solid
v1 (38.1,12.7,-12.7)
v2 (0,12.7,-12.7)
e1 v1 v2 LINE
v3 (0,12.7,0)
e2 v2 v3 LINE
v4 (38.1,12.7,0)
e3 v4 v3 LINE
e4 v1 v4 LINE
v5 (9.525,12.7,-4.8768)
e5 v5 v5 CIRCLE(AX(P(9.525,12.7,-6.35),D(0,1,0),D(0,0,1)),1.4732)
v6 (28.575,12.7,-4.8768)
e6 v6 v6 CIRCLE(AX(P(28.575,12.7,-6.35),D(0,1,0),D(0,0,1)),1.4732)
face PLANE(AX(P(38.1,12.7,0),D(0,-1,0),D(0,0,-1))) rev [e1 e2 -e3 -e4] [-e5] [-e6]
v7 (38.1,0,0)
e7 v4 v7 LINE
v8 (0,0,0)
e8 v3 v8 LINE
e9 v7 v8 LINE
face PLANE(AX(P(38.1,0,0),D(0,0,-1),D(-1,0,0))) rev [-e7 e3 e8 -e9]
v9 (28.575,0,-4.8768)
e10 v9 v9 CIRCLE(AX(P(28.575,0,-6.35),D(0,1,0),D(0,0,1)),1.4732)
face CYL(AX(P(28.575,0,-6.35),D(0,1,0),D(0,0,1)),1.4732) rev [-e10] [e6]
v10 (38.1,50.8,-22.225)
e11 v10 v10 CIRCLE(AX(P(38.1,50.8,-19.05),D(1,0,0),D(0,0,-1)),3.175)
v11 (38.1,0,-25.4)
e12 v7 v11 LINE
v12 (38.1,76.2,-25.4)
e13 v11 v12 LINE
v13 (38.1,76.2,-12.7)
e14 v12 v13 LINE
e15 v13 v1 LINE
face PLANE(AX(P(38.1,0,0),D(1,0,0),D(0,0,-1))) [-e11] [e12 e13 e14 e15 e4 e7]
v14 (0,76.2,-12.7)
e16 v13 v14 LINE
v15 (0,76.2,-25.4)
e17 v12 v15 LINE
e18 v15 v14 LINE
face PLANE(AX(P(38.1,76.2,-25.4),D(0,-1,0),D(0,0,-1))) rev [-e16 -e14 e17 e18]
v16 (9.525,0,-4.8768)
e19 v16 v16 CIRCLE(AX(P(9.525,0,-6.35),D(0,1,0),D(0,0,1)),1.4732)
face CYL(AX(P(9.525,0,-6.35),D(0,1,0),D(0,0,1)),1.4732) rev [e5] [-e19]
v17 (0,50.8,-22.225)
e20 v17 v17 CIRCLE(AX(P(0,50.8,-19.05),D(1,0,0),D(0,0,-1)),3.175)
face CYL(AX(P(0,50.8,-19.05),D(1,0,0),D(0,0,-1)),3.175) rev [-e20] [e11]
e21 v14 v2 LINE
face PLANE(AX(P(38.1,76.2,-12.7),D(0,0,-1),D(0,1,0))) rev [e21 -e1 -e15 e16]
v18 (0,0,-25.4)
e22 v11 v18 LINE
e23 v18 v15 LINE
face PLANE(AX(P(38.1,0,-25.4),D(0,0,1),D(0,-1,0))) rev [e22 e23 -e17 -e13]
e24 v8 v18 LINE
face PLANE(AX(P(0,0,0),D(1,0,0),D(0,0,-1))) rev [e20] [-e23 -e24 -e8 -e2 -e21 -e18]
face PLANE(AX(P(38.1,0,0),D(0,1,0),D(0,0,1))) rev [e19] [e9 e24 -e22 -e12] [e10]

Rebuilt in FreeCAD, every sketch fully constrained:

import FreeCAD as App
import Part
import Sketcher
Q = App.Units.Quantity

doc = App.newDocument("Part")
body = doc.addObject("PartDesign::Body", "Body")

sketch1 = body.newObject("Sketcher::SketchObject", "Sketch")
sketch1.AttachmentSupport = (doc.getObject("YZ_Plane"), [""])
sketch1.MapMode = "FlatFace"
sketch1.addGeometry([
    Part.LineSegment(App.Vector(13, 0, 0), App.Vector(0, 0, 0)),
    Part.LineSegment(App.Vector(0, 0, 0), App.Vector(0, -25, 0)),
    Part.LineSegment(App.Vector(0, -25, 0), App.Vector(76, -25, 0)),
    Part.LineSegment(App.Vector(76, -25, 0), App.Vector(76, -13, 0)),
    Part.LineSegment(App.Vector(76, -13, 0), App.Vector(13, -13, 0)),
    Part.LineSegment(App.Vector(13, -13, 0), App.Vector(13, 0, 0)),
], False)
sketch1.addConstraint([
    Sketcher.Constraint("Coincident", 0, 2, 1, 1),
    Sketcher.Constraint("Coincident", 1, 2, 2, 1),
    Sketcher.Constraint("Coincident", 2, 2, 3, 1),
    Sketcher.Constraint("Coincident", 3, 2, 4, 1),
    Sketcher.Constraint("Coincident", 4, 2, 5, 1),
    Sketcher.Constraint("Coincident", 5, 2, 0, 1),
    Sketcher.Constraint("Horizontal", 0),
    Sketcher.Constraint("Vertical", 1),
    Sketcher.Constraint("Horizontal", 2),
    Sketcher.Constraint("Vertical", 3),
    Sketcher.Constraint("Horizontal", 4),
    Sketcher.Constraint("Vertical", 5),
    Sketcher.Constraint("Coincident", 0, 2, -1, 1),
    Sketcher.Constraint("Equal", 0, 3),
    Sketcher.Constraint("Equal", 3, 5),
    Sketcher.Constraint("DistanceX", 2, 1, 2, 2, Q("3 in")),
    Sketcher.Constraint("DistanceY", 1, 2, 1, 1, Q("1 in")),
])
pad1 = body.newObject("PartDesign::Pad", "Pad")
pad1.Profile = sketch1
pad1.Length = Q("1.5 in")

sketch2 = body.newObject("Sketcher::SketchObject", "Sketch001")
sketch2.AttachmentSupport = (doc.getObject("YZ_Plane"), [""])
sketch2.MapMode = "FlatFace"
sketch2.AttachmentOffset = App.Placement(App.Vector(0, 0, 1.5 * 25.4), App.Rotation())
sketch2.addGeometry(Part.Circle(App.Vector(50.8, -19.1, 0), App.Vector(0, 0, 1), 3.2), False)
sketch2.addConstraint([
    Sketcher.Constraint("Diameter", 0, Q("0.25 in")),
    Sketcher.Constraint("DistanceX", -1, 1, 0, 3, Q("2 in")),
    Sketcher.Constraint("DistanceY", 0, 3, -1, 1, Q("0.75 in")),
])
pocket1 = body.newObject("PartDesign::Pocket", "Pocket")
pocket1.Profile = sketch2
pocket1.Type = "ThroughAll"

sketch3 = body.newObject("Sketcher::SketchObject", "Sketch002")
sketch3.AttachmentSupport = (doc.getObject("XZ_Plane"), [""])
sketch3.MapMode = "FlatFace"
sketch3.AttachmentOffset = App.Placement(App.Vector(0, 0, -0.5 * 25.4), App.Rotation())
sketch3.addGeometry([
    Part.Circle(App.Vector(9.5, -6.3, 0), App.Vector(0, 0, 1), 1.5),
    Part.Circle(App.Vector(28.6, -6.3, 0), App.Vector(0, 0, 1), 1.5),
], False)
sketch3.addConstraint([
    Sketcher.Constraint("Equal", 0, 1),
    Sketcher.Constraint("Horizontal", 0, 3, 1, 3),
    Sketcher.Constraint("Diameter", 0, Q("0.116 in")),
    Sketcher.Constraint("DistanceY", 0, 3, -1, 1, Q("0.25 in")),
    Sketcher.Constraint("DistanceX", 0, 3, 1, 3, Q("0.75 in")),
    Sketcher.Constraint("DistanceX", -1, 1, 0, 3, Q("0.375 in")),
])
pocket2 = body.newObject("PartDesign::Pocket", "Pocket001")
pocket2.Profile = sketch3
pocket2.Type = "ThroughAll"
pocket2.Reversed = True

doc.recompute()
